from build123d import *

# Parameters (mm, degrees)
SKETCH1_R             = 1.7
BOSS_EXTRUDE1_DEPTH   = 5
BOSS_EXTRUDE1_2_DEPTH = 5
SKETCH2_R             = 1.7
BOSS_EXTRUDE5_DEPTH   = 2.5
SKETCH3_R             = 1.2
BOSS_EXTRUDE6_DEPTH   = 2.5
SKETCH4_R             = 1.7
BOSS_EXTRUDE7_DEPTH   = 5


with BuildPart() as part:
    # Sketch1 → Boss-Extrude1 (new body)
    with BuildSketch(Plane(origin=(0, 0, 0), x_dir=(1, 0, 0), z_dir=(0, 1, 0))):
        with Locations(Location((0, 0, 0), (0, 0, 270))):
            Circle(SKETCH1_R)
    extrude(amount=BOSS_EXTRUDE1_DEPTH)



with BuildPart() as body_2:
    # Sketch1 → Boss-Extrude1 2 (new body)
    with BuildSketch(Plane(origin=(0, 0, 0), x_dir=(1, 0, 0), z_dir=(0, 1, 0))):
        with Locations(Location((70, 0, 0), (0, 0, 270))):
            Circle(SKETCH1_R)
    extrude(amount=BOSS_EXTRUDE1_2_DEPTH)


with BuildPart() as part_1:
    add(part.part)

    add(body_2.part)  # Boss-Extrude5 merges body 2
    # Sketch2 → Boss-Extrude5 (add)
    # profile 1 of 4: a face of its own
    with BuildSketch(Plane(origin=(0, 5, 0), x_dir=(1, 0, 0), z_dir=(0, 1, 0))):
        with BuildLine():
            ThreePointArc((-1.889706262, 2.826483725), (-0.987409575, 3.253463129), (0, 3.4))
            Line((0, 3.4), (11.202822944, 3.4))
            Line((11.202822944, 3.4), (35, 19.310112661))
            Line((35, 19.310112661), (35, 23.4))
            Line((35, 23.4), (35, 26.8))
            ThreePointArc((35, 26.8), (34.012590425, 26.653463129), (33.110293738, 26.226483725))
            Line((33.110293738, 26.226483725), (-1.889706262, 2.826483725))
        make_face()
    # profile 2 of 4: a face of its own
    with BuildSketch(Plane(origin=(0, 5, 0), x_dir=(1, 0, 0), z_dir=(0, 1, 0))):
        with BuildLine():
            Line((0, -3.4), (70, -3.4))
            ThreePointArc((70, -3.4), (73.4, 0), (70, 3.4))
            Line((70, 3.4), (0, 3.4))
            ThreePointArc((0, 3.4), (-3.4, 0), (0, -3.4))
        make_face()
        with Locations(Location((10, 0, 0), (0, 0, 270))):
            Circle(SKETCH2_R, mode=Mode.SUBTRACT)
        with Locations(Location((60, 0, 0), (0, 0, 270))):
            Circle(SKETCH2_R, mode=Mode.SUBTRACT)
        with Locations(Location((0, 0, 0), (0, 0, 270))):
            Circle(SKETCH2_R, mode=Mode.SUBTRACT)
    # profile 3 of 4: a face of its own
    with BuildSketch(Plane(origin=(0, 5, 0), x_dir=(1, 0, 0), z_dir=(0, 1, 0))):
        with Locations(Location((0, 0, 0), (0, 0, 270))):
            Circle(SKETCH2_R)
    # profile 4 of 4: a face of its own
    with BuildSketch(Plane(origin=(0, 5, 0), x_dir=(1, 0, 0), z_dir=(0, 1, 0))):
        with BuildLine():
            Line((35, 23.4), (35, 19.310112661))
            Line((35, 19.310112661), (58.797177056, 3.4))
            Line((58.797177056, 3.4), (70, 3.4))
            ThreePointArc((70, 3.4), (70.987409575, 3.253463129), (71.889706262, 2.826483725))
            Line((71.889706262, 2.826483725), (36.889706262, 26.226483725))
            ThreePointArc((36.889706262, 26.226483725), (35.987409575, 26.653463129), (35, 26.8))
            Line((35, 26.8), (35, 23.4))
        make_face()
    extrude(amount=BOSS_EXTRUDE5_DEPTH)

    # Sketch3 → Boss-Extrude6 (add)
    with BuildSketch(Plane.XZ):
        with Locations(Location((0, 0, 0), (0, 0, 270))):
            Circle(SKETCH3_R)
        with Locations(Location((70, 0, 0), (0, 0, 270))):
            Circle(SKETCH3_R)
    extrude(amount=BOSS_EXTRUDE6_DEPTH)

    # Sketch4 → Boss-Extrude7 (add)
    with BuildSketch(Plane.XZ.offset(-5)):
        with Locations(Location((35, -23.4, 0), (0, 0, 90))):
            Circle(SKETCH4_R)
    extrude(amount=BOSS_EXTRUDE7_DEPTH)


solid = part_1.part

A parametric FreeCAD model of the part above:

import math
import FreeCAD as App
import Part
import Sketcher
Q = App.Units.Quantity


def add_polygon(sketch, points):
    """Adds a closed chain of lines whose ends are joined by coincident constraints."""
    first, n = sketch.GeometryCount, len(points)
    for a, b in zip(points, points[1:] + points[:1]):
        sketch.addGeometry(Part.LineSegment(App.Vector(*a, 0), App.Vector(*b, 0)), False)
    for i in range(n):
        sketch.addConstraint(Sketcher.Constraint("Coincident", first + i, 2, first + (i + 1) % n, 1))

doc = App.newDocument("Part")
body = doc.addObject("PartDesign::Body", "Body")

# Sketch on XZ plane
sketch1 = body.newObject("Sketcher::SketchObject", "Sketch")
sketch1.AttachmentSupport = (doc.getObject("XZ_Plane"), [""])
sketch1.MapMode = "FlatFace"
sketch1.addGeometry(Part.Circle(App.Vector(0, 0, 0), App.Vector(0, 0, 1), 1.7), False)
sketch1.addConstraint([
    Sketcher.Constraint("Coincident", 0, 3, -1, 1),
    Sketcher.Constraint("Diameter", 0, Q("3.4 mm")),
])
pad1 = body.newObject("PartDesign::Pad", "Pad")
pad1.Profile = sketch1
pad1.Length = 5
pad1.Reversed = True
body2 = doc.addObject("PartDesign::Body", "Body001")

# Sketch on XZ plane
sketch2 = body2.newObject("Sketcher::SketchObject", "Sketch001")
sketch2.AttachmentSupport = (doc.getObject("XZ_Plane001"), [""])
sketch2.MapMode = "FlatFace"
sketch2.addGeometry(Part.Circle(App.Vector(70, 0, 0), App.Vector(0, 0, 1), 1.7), False)
sketch2.addConstraint([
    Sketcher.Constraint("PointOnObject", 0, 3, -1),
    Sketcher.Constraint("Diameter", 0, Q("3.4 mm")),
    Sketcher.Constraint("DistanceX", -1, 1, 0, 3, Q("70 mm")),
])
pad2 = body2.newObject("PartDesign::Pad", "Pad001")
pad2.Profile = sketch2
pad2.Length = 5
pad2.Reversed = True
body.AllowCompound = True
doc.recompute()

boolean = body.newObject("PartDesign::Boolean", "Boolean")
boolean.Type = "Fuse"
boolean.addObjects([body2])

# Sketch on XZ plane
sketch3 = body.newObject("Sketcher::SketchObject", "Sketch002")
sketch3.AttachmentSupport = (doc.getObject("XZ_Plane"), [""])
sketch3.MapMode = "FlatFace"
sketch3.AttachmentOffset = App.Placement(App.Vector(0, 0, -5), App.Rotation())
sketch3.addGeometry(Part.ArcOfCircle(Part.Circle(App.Vector(35, -23.4, 0), App.Vector(0, 0, 1), 3.4), math.radians(-124), math.radians(-90)), False)  # 0
sketch3.addGeometry(Part.LineSegment(App.Vector(33.1, -26.2, 0), App.Vector(-1.9, -2.8, 0)), False)  # 1
sketch3.addGeometry(Part.ArcOfCircle(Part.Circle(App.Vector(0, 0, 0), App.Vector(0, 0, 1), 3.4), math.radians(90), math.radians(236)), False)  # 2
sketch3.addGeometry(Part.LineSegment(App.Vector(0, 3.4, 0), App.Vector(70, 3.4, 0)), False)  # 3
sketch3.addGeometry(Part.ArcOfCircle(Part.Circle(App.Vector(70, 0, 0), App.Vector(0, 0, 1), 3.4), math.radians(-56), math.radians(90)), False)  # 4
sketch3.addGeometry(Part.LineSegment(App.Vector(71.9, -2.8, 0), App.Vector(36.9, -26.2, 0)), False)  # 5
sketch3.addGeometry(Part.ArcOfCircle(Part.Circle(App.Vector(35, -23.4, 0), App.Vector(0, 0, 1), 3.4), math.radians(-90), math.radians(-56)), False)  # 6
add_polygon(sketch3, [(11.2, -3.4), (35, -19.3), (58.8, -3.4)])  # lines 7-9
sketch3.addGeometry(Part.Circle(App.Vector(60, 0, 0), App.Vector(0, 0, 1), 1.7), False)  # 10
sketch3.addGeometry(Part.Circle(App.Vector(10, 0, 0), App.Vector(0, 0, 1), 1.7), False)  # 11
sketch3.addConstraint([
    Sketcher.Constraint("Tangent", 0, 1, 1, 1),
    Sketcher.Constraint("Tangent", 1, 2, 2, 2),
    Sketcher.Constraint("Tangent", 2, 1, 3, 1),
    Sketcher.Constraint("Tangent", 3, 2, 4, 2),
    Sketcher.Constraint("Tangent", 4, 1, 5, 1),
    Sketcher.Constraint("Tangent", 5, 2, 6, 2),
    Sketcher.Constraint("Tangent", 6, 1, 0, 2),
    Sketcher.Constraint("Horizontal", 3),
    Sketcher.Constraint("Horizontal", 9),
    Sketcher.Constraint("Coincident", 2, 3, -1, 1),
    Sketcher.Constraint("Equal", 0, 2),
    Sketcher.Constraint("Equal", 2, 4),
    Sketcher.Constraint("Equal", 4, 6),
    Sketcher.Constraint("Equal", 10, 11),
    Sketcher.Constraint("PointOnObject", 10, 3, -1),
    Sketcher.Constraint("PointOnObject", 11, 3, -1),
    Sketcher.Constraint("Parallel", 1, 7),
    Sketcher.Constraint("Parallel", 5, 8),
    Sketcher.Constraint("Horizontal", 1, 2, 4, 1),
    Sketcher.Constraint("Vertical", 0, 3, 6, 1),
    Sketcher.Constraint("Vertical", 6, 1, 7, 2),
    Sketcher.Constraint("Diameter", 10, Q("3.4 mm")),
    Sketcher.Constraint("Radius", 0, Q("3.4 mm")),
    Sketcher.Constraint("DistanceX", 3, 1, 3, 2, Q("70 mm")),
    Sketcher.Constraint("DistanceX", -1, 1, 10, 3, Q("60 mm")),
    Sketcher.Constraint("DistanceX", -1, 1, 11, 3, Q("10 mm")),
    Sketcher.Constraint("DistanceY", 0, 3, -1, 1, Q("23.4 mm")),
    Sketcher.Constraint("DistanceY", 8, 2, -1, 1, Q("3.4 mm")),
    Sketcher.Constraint("DistanceX", 9, 2, 9, 1, Q("47.594354 mm")),
])
pad3 = body.newObject("PartDesign::Pad", "Pad002")
pad3.Profile = sketch3
pad3.Length = 2.5
pad3.Reversed = True

# Sketch on XZ plane
sketch4 = body.newObject("Sketcher::SketchObject", "Sketch003")
sketch4.AttachmentSupport = (doc.getObject("XZ_Plane"), [""])
sketch4.MapMode = "FlatFace"
sketch4.addGeometry([
    Part.Circle(App.Vector(0, 0, 0), App.Vector(0, 0, 1), 1.2),
    Part.Circle(App.Vector(70, 0, 0), App.Vector(0, 0, 1), 1.2),
], False)
sketch4.addConstraint([
    Sketcher.Constraint("Coincident", 0, 3, -1, 1),
    Sketcher.Constraint("Equal", 0, 1),
    Sketcher.Constraint("PointOnObject", 1, 3, -1),
    Sketcher.Constraint("Diameter", 0, Q("2.4 mm")),
    Sketcher.Constraint("DistanceX", -1, 1, 1, 3, Q("70 mm")),
])
pad4 = body.newObject("PartDesign::Pad", "Pad003")
pad4.Profile = sketch4
pad4.Length = 2.5

# Sketch on XZ plane
sketch5 = body.newObject("Sketcher::SketchObject", "Sketch004")
sketch5.AttachmentSupport = (doc.getObject("XZ_Plane"), [""])
sketch5.MapMode = "FlatFace"
sketch5.AttachmentOffset = App.Placement(App.Vector(0, 0, -5), App.Rotation())
sketch5.addGeometry(Part.Circle(App.Vector(35, -23.4, 0), App.Vector(0, 0, 1), 1.7), False)
sketch5.addConstraint([
    Sketcher.Constraint("Diameter", 0, Q("3.4 mm")),
    Sketcher.Constraint("DistanceX", -1, 1, 0, 3, Q("35 mm")),
    Sketcher.Constraint("DistanceY", 0, 3, -1, 1, Q("23.4 mm")),
])
pad5 = body.newObject("PartDesign::Pad", "Pad004")
pad5.Profile = sketch5
pad5.Length = 5

doc.recompute()
